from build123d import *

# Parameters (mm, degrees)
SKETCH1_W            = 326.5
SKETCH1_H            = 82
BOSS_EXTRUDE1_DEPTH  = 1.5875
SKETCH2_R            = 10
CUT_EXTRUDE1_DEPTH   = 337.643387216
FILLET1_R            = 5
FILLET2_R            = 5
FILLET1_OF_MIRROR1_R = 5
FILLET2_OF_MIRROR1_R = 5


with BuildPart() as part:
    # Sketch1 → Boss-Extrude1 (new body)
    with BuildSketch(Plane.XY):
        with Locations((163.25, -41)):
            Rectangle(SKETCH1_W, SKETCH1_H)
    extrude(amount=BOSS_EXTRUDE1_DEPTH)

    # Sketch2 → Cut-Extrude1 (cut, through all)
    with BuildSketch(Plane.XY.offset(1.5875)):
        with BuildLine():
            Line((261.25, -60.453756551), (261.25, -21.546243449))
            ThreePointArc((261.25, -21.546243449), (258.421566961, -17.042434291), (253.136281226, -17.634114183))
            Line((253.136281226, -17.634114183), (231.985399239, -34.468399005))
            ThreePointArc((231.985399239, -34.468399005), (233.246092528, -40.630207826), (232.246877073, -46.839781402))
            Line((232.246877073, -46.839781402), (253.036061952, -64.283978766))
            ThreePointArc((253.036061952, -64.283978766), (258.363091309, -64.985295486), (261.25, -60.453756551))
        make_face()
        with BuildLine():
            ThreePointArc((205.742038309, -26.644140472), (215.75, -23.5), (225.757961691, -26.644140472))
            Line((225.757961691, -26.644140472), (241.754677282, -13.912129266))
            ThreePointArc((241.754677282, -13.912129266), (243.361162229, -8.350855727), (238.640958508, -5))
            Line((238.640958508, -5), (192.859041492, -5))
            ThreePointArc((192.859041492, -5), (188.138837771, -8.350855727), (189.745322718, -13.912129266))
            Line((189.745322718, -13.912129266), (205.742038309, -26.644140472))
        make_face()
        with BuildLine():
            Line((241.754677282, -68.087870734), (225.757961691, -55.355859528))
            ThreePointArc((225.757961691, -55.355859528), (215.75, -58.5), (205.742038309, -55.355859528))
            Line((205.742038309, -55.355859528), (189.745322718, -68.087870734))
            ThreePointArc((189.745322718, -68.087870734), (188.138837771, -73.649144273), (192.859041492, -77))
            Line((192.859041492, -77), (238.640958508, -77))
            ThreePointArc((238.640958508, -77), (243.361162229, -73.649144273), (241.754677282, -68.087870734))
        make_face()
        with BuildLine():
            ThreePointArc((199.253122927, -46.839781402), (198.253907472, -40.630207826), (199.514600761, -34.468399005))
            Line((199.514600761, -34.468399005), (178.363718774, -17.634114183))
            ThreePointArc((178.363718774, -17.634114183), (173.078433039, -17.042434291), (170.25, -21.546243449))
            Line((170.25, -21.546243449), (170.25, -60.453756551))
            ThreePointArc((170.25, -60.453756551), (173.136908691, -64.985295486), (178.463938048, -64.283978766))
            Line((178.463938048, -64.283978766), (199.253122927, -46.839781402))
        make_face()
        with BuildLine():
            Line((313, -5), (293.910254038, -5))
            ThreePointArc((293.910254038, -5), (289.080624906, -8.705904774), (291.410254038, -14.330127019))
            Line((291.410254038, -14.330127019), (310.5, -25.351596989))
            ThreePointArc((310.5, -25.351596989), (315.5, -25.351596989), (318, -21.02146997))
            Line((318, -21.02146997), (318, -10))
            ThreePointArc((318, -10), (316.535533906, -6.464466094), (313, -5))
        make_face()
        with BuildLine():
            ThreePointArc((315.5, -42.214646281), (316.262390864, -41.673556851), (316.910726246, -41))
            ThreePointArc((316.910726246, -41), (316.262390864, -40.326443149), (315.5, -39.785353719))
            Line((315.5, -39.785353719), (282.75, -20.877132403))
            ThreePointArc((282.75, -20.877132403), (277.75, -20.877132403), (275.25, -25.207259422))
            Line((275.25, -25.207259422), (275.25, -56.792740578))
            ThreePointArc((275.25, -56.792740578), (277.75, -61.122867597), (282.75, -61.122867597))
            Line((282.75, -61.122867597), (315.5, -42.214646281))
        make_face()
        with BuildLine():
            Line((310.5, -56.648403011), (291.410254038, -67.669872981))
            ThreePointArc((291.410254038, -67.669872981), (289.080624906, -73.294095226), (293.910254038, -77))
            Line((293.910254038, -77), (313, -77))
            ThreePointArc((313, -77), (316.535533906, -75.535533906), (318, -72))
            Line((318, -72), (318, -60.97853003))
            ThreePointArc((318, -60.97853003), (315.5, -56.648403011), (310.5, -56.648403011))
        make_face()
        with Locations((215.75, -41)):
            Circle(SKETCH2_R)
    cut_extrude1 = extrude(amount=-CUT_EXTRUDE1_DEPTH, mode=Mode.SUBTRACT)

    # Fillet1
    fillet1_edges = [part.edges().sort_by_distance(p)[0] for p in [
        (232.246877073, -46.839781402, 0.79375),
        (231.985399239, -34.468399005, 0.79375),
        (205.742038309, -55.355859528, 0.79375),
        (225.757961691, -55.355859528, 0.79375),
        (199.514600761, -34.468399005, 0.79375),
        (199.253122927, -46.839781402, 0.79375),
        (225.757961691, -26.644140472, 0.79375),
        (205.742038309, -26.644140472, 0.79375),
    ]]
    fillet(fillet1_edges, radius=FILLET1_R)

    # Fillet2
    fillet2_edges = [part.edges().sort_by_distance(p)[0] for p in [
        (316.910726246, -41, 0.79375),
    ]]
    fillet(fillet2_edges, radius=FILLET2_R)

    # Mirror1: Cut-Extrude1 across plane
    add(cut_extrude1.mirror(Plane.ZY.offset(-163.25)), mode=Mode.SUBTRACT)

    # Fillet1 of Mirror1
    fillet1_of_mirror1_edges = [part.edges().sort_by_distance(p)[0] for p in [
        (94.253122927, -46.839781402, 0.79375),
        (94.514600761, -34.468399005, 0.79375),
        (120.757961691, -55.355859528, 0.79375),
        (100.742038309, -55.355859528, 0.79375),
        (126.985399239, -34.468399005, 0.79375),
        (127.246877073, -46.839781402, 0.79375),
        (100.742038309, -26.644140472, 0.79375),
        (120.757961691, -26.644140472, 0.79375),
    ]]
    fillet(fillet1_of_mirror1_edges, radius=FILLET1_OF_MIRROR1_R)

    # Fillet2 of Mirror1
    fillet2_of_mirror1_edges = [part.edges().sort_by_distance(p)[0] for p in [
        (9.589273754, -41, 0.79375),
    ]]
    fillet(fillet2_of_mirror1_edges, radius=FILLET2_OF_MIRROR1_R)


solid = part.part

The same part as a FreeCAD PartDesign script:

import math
import FreeCAD as App
import Part
import Sketcher

V = App.Vector
Q = App.Units.Quantity


def edges_at(feature, points):
    """Names of the edges that pass closest to the given points."""
    edges = feature.Shape.Edges
    near = lambda p: min(range(len(edges)), key=lambda i: edges[i].distToShape(Part.Vertex(*p))[0])
    return sorted({f"Edge{near(p) + 1}" for p in points})

doc = App.newDocument("Part")
params = doc.addObject("Spreadsheet::Sheet", "Params")
for row, (alias, value) in enumerate([
    ("sketch1_height", "82 mm"),
    ("sketch1_width", "326.5 mm"),
    ("pad1_length", "1.5875 mm"),
    ("sketch2_diameter", "20 mm"),
    ("sketch2_radius", "5 mm"),
    ("sketch2_radius2", "17.5 mm"),
    ("fillet_radius", "5 mm"),
    ("fillet2_radius", "5 mm"),
    ("fillet3_radius", "5 mm"),
    ("fillet4_radius", "5 mm"),
], start=1):
    params.set(f"A{row}", alias)
    params.set(f"B{row}", "=" + value)
    params.setAlias(f"B{row}", alias)

body = doc.addObject("PartDesign::Body", "Body")

sketch1 = doc.addObject("Sketcher::SketchObject", "Sketch")
body.addObject(sketch1)
sketch1.AttachmentSupport = (doc.XY_Plane, [""])
sketch1.MapMode = "FlatFace"
sketch1.addGeometry([
    Part.LineSegment(V(0, 0, 0), V(0, -82, 0)),
    Part.LineSegment(V(0, -82, 0), V(326, -82, 0)),
    Part.LineSegment(V(326, -82, 0), V(326, 0, 0)),
    Part.LineSegment(V(326, 0, 0), V(0, 0, 0)),
], False)
sketch1.addConstraint([
    Sketcher.Constraint("Coincident", 0, 2, 1, 1),
    Sketcher.Constraint("Coincident", 1, 2, 2, 1),
    Sketcher.Constraint("Coincident", 2, 2, 3, 1),
    Sketcher.Constraint("Coincident", 3, 2, 0, 1),
    Sketcher.Constraint("Vertical", 0),
    Sketcher.Constraint("Horizontal", 1),
    Sketcher.Constraint("Vertical", 2),
    Sketcher.Constraint("Horizontal", 3),
    Sketcher.Constraint("Coincident", 3, 2, -1, 1),
    Sketcher.Constraint("DistanceY", 0, 2, 0, 1, Q("82 mm")),
    Sketcher.Constraint("DistanceX", 1, 1, 1, 2, Q("326.5 mm")),
])
sketch1.setExpression("Constraints[9]", "Params.sketch1_height")
sketch1.setExpression("Constraints[10]", "Params.sketch1_width")
pad1 = doc.addObject("PartDesign::Pad", "Pad")
body.addObject(pad1)
pad1.Profile = sketch1
pad1.setExpression("Length", "Params.pad1_length")

sketch2 = doc.addObject("Sketcher::SketchObject", "Sketch001")
body.addObject(sketch2)
sketch2.AttachmentSupport = (doc.XY_Plane, [""])
sketch2.MapMode = "FlatFace"
sketch2.AttachmentOffset = App.Placement(V(0, 0, 1.5875), App.Rotation())
sketch2.addGeometry([
    Part.LineSegment(V(261.2, -60.5, 0), V(261.2, -21.5, 0)),
    Part.ArcOfCircle(Part.Circle(V(256.2, -21.5, 0), V(0, 0, 1), 5), math.radians(0), math.radians(129)),
    Part.LineSegment(V(253.1, -17.6, 0), V(232, -34.5, 0)),
    Part.ArcOfCircle(Part.Circle(V(215.8, -41, 0), V(0, 0, 1), 17.5), math.radians(-19), math.radians(22)),
    Part.LineSegment(V(232.2, -46.8, 0), V(253, -64.3, 0)),
    Part.ArcOfCircle(Part.Circle(V(256.3, -60.5, 0), V(0, 0, 1), 5), math.radians(-130), math.radians(0)),
    Part.ArcOfCircle(Part.Circle(V(215.8, -41, 0), V(0, 0, 1), 17.5), math.radians(55), math.radians(125)),
    Part.LineSegment(V(225.8, -26.6, 0), V(241.8, -13.9, 0)),
    Part.ArcOfCircle(Part.Circle(V(238.6, -10, 0), V(0, 0, 1), 5), math.radians(-51), math.radians(90)),
    Part.LineSegment(V(238.6, -5, 0), V(192.9, -5, 0)),
    Part.ArcOfCircle(Part.Circle(V(192.9, -10, 0), V(0, 0, 1), 5), math.radians(90), math.radians(231)),
    Part.LineSegment(V(189.7, -13.9, 0), V(205.7, -26.6, 0)),
    Part.LineSegment(V(241.8, -68.1, 0), V(225.8, -55.4, 0)),
    Part.ArcOfCircle(Part.Circle(V(215.8, -41, 0), V(0, 0, 1), 17.5), math.radians(-125), math.radians(-55)),
    Part.LineSegment(V(205.7, -55.4, 0), V(189.7, -68.1, 0)),
    Part.ArcOfCircle(Part.Circle(V(192.9, -72, 0), V(0, 0, 1), 5), math.radians(129), math.radians(270)),
    Part.LineSegment(V(192.9, -77, 0), V(238.6, -77, 0)),
    Part.ArcOfCircle(Part.Circle(V(238.6, -72, 0), V(0, 0, 1), 5), math.radians(-90), math.radians(51)),
    Part.ArcOfCircle(Part.Circle(V(215.7, -41, 0), V(0, 0, 1), 17.5), math.radians(158), math.radians(199)),
    Part.LineSegment(V(199.5, -34.5, 0), V(178.4, -17.6, 0)),
    Part.ArcOfCircle(Part.Circle(V(175.2, -21.5, 0), V(0, 0, 1), 5), math.radians(51), math.radians(180)),
    Part.LineSegment(V(170.2, -21.5, 0), V(170.2, -60.5, 0)),
    Part.ArcOfCircle(Part.Circle(V(175.2, -60.5, 0), V(0, 0, 1), 5), math.radians(180), math.radians(310)),
    Part.LineSegment(V(178.5, -64.3, 0), V(199.3, -46.8, 0)),
    Part.LineSegment(V(313, -5, 0), V(293.9, -5, 0)),
    Part.ArcOfCircle(Part.Circle(V(293.9, -10, 0), V(0, 0, 1), 5), math.radians(90), math.radians(240)),
    Part.LineSegment(V(291.4, -14.3, 0), V(310.5, -25.4, 0)),
    Part.ArcOfCircle(Part.Circle(V(313, -21, 0), V(0, 0, 1), 5), math.radians(-120), math.radians(0)),
    Part.LineSegment(V(318, -21, 0), V(318, -10, 0)),
    Part.ArcOfCircle(Part.Circle(V(313, -10, 0), V(0, 0, 1), 5), math.radians(0), math.radians(90)),
    Part.ArcOfCircle(Part.Circle(V(313, -37.9, 0), V(0, 0, 1), 5), math.radians(-60), math.radians(-39)),
    Part.ArcOfCircle(Part.Circle(V(313, -44.1, 0), V(0, 0, 1), 5), math.radians(39), math.radians(60)),
    Part.LineSegment(V(315.5, -39.8, 0), V(282.8, -20.9, 0)),
    Part.ArcOfCircle(Part.Circle(V(280.2, -25.2, 0), V(0, 0, 1), 5), math.radians(60), math.radians(180)),
    Part.LineSegment(V(275.2, -25.2, 0), V(275.2, -56.8, 0)),
    Part.ArcOfCircle(Part.Circle(V(280.2, -56.8, 0), V(0, 0, 1), 5), math.radians(180), math.radians(300)),
    Part.LineSegment(V(282.8, -61.1, 0), V(315.5, -42.2, 0)),
    Part.LineSegment(V(310.5, -56.6, 0), V(291.4, -67.7, 0)),
    Part.ArcOfCircle(Part.Circle(V(293.9, -72, 0), V(0, 0, 1), 5), math.radians(120), math.radians(270)),
    Part.LineSegment(V(293.9, -77, 0), V(313, -77, 0)),
    Part.ArcOfCircle(Part.Circle(V(313, -72, 0), V(0, 0, 1), 5), math.radians(-90), math.radians(0)),
    Part.LineSegment(V(318, -72, 0), V(318, -61, 0)),
    Part.ArcOfCircle(Part.Circle(V(313, -61, 0), V(0, 0, 1), 5), math.radians(0), math.radians(120)),
    Part.Circle(V(215.8, -41, 0), V(0, 0, 1), 10),
], False)
sketch2.addConstraint([
    Sketcher.Constraint("Tangent", 0, 2, 1, 1),
    Sketcher.Constraint("Tangent", 1, 2, 2, 1),
    Sketcher.Constraint("Coincident", 2, 2, 3, 2),
    Sketcher.Constraint("Coincident", 3, 1, 4, 1),
    Sketcher.Constraint("Tangent", 4, 2, 5, 1),
    Sketcher.Constraint("Tangent", 5, 2, 0, 1),
    Sketcher.Constraint("Coincident", 6, 1, 7, 1),
    Sketcher.Constraint("Tangent", 7, 2, 8, 1),
    Sketcher.Constraint("Tangent", 8, 2, 9, 1),
    Sketcher.Constraint("Tangent", 9, 2, 10, 1),
    Sketcher.Constraint("Tangent", 10, 2, 11, 1),
    Sketcher.Constraint("Coincident", 11, 2, 6, 2),
    Sketcher.Constraint("Coincident", 12, 2, 13, 2),
    Sketcher.Constraint("Coincident", 13, 1, 14, 1),
    Sketcher.Constraint("Tangent", 14, 2, 15, 1),
    Sketcher.Constraint("Tangent", 15, 2, 16, 1),
    Sketcher.Constraint("Tangent", 16, 2, 17, 1),
    Sketcher.Constraint("Tangent", 17, 2, 12, 1),
    Sketcher.Constraint("Coincident", 18, 1, 19, 1),
    Sketcher.Constraint("Tangent", 19, 2, 20, 1),
    Sketcher.Constraint("Tangent", 20, 2, 21, 1),
    Sketcher.Constraint("Tangent", 21, 2, 22, 1),
    Sketcher.Constraint("Tangent", 22, 2, 23, 1),
    Sketcher.Constraint("Coincident", 23, 2, 18, 2),
    Sketcher.Constraint("Tangent", 24, 2, 25, 1),
    Sketcher.Constraint("Tangent", 25, 2, 26, 1),
    Sketcher.Constraint("Tangent", 26, 2, 27, 1),
    Sketcher.Constraint("Tangent", 27, 2, 28, 1),
    Sketcher.Constraint("Tangent", 28, 2, 29, 1),
    Sketcher.Constraint("Tangent", 29, 2, 24, 1),
    Sketcher.Constraint("Coincident", 30, 2, 31, 1),
    Sketcher.Constraint("Tangent", 31, 2, 32, 1),
    Sketcher.Constraint("Tangent", 32, 2, 33, 1),
    Sketcher.Constraint("Tangent", 33, 2, 34, 1),
    Sketcher.Constraint("Tangent", 34, 2, 35, 1),
    Sketcher.Constraint("Tangent", 35, 2, 36, 1),
    Sketcher.Constraint("Tangent", 36, 2, 30, 1),
    Sketcher.Constraint("Tangent", 37, 2, 38, 1),
    Sketcher.Constraint("Tangent", 38, 2, 39, 1),
    Sketcher.Constraint("Tangent", 39, 2, 40, 1),
    Sketcher.Constraint("Tangent", 40, 2, 41, 1),
    Sketcher.Constraint("Tangent", 41, 2, 42, 1),
    Sketcher.Constraint("Tangent", 42, 2, 37, 1),
    Sketcher.Constraint("Vertical", 0),
    Sketcher.Constraint("Horizontal", 9),
    Sketcher.Constraint("Horizontal", 16),
    Sketcher.Constraint("Vertical", 21),
    Sketcher.Constraint("Horizontal", 24),
    Sketcher.Constraint("Vertical", 28),
    Sketcher.Constraint("Vertical", 34),
    Sketcher.Constraint("Horizontal", 39),
    Sketcher.Constraint("Vertical", 41),
    Sketcher.Constraint("Coincident", 6, 3, 3, 3),
    Sketcher.Constraint("Coincident", 13, 3, 3, 3),
    Sketcher.Constraint("Coincident", 18, 3, 3, 3),
    Sketcher.Constraint("Coincident", 43, 3, 3, 3),
    Sketcher.Constraint("Equal", 1, 5),
    Sketcher.Constraint("Equal", 3, 6),
    Sketcher.Constraint("Equal", 5, 8),
    Sketcher.Constraint("Equal", 8, 10),
    Sketcher.Constraint("Equal", 6, 13),
    Sketcher.Constraint("Equal", 10, 15),
    Sketcher.Constraint("Equal", 15, 17),
    Sketcher.Constraint("Equal", 13, 18),
    Sketcher.Constraint("Equal", 17, 20),
    Sketcher.Constraint("Equal", 20, 22),
    Sketcher.Constraint("Equal", 22, 25),
    Sketcher.Constraint("Equal", 25, 27),
    Sketcher.Constraint("Equal", 27, 29),
    Sketcher.Constraint("Equal", 29, 30),
    Sketcher.Constraint("Equal", 30, 31),
    Sketcher.Constraint("Equal", 31, 33),
    Sketcher.Constraint("Equal", 33, 35),
    Sketcher.Constraint("Equal", 35, 38),
    Sketcher.Constraint("Equal", 38, 40),
    Sketcher.Constraint("Equal", 40, 42),
    Sketcher.Constraint("Parallel", 2, 7),
    Sketcher.Constraint("Parallel", 11, 12),
    Sketcher.Constraint("Parallel", 7, 14),
    Sketcher.Constraint("Parallel", 12, 19),
    Sketcher.Constraint("Parallel", 26, 32),
    Sketcher.Constraint("Parallel", 36, 37),
    Sketcher.Constraint("Horizontal", 1, 3, 20, 3),
    Sketcher.Constraint("Horizontal", 5, 3, 22, 3),
    Sketcher.Constraint("Horizontal", 10, 3, 25, 3),
    Sketcher.Constraint("Horizontal", 17, 3, 38, 3),
    Sketcher.Constraint("Horizontal", 7, 2, 10, 2),
    Sketcher.Constraint("Horizontal", 6, 1, 11, 2),
    Sketcher.Constraint("Horizontal", 12, 2, 13, 1),
    Sketcher.Constraint("Horizontal", 2, 2, 18, 1),
    Sketcher.Constraint("Horizontal", 4, 2, 22, 2),
    Sketcher.Constraint("Horizontal", 43, 3, 30, 2),
    Sketcher.Constraint("Vertical", 10, 3, 15, 3),
    Sketcher.Constraint("Vertical", 29, 3, 30, 3),
    Sketcher.Constraint("Vertical", 30, 3, 31, 3),
    Sketcher.Constraint("Vertical", 25, 3, 38, 3),
    Sketcher.Constraint("Vertical", 31, 3, 40, 3),
    Sketcher.Constraint("Vertical", 6, 1, 12, 2),
    Sketcher.Constraint("Vertical", 32, 2, 35, 2),
    Sketcher.Constraint("Diameter", 43, Q("20 mm")),
    Sketcher.Constraint("Radius", 1, Q("5 mm")),
    Sketcher.Constraint("Radius", 3, Q("17.5 mm")),
    Sketcher.Constraint("Angle", 4, Q("-40 deg")),
    Sketcher.Constraint("Angle", 26, Q("-30 deg")),
    Sketcher.Constraint("DistanceY", 3, 3, -1, 1, Q("41 mm")),
    Sketcher.Constraint("DistanceY", 8, 3, -1, 1, Q("10 mm")),
    Sketcher.Constraint("DistanceX", -1, 1, 27, 3, Q("313 mm")),
    Sketcher.Constraint("DistanceX", -1, 1, 1, 3, Q("256.25 mm")),
    Sketcher.Constraint("DistanceX", -1, 1, 3, 3, Q("215.75 mm")),
    Sketcher.Constraint("DistanceX", -1, 1, 33, 3, Q("280.25 mm")),
    Sketcher.Constraint("DistanceY", 28, 1, 28, 2, Q("11.02147 mm")),
    Sketcher.Constraint("DistanceY", 34, 2, 34, 1, Q("31.585481 mm")),
    Sketcher.Constraint("DistanceX", -1, 1, 2, 2, Q("231.985399 mm")),
    Sketcher.Constraint("DistanceX", 9, 2, 9, 1, Q("45.781917 mm")),
    Sketcher.Constraint("DistanceY", 0, 1, 0, 2, Q("38.907513 mm")),
    Sketcher.Constraint("DistanceX", -1, 1, 1, 2, Q("253.136281 mm")),
])
sketch2.setExpression("Constraints[99]", "Params.sketch2_diameter")
sketch2.setExpression("Constraints[100]", "Params.sketch2_radius")
sketch2.setExpression("Constraints[101]", "Params.sketch2_radius2")
pocket1 = doc.addObject("PartDesign::Pocket", "Pocket")
body.addObject(pocket1)
pocket1.Profile = sketch2
pocket1.Type = "ThroughAll"
doc.recompute()

fillet = doc.addObject("PartDesign::Fillet", "Fillet")
body.addObject(fillet)
fillet.Base = (pocket1, edges_at(pocket1, [
    (232.247, -46.84, 0.794),
    (231.985, -34.468, 0.794),
    (205.742, -55.356, 0.794),
    (225.758, -55.356, 0.794),
    (199.515, -34.468, 0.794),
    (199.253, -46.84, 0.794),
    (225.758, -26.644, 0.794),
    (205.742, -26.644, 0.794),
]))
fillet.setExpression("Radius", "Params.fillet_radius")
doc.recompute()

fillet2 = doc.addObject("PartDesign::Fillet", "Fillet001")
body.addObject(fillet2)
fillet2.Base = (fillet, edges_at(fillet, [(316.911, -41, 0.794)]))
fillet2.setExpression("Radius", "Params.fillet2_radius")
doc.recompute()

datumplane = doc.addObject("PartDesign::Plane", "DatumPlane")
body.addObject(datumplane)
datumplane.AttachmentSupport = (doc.YZ_Plane, [""])
datumplane.MapMode = "FlatFace"
datumplane.AttachmentOffset = App.Placement(V(0, 0, 163.25), App.Rotation())
mirrored = doc.addObject("PartDesign::Mirrored", "Mirrored")
body.addObject(mirrored)
mirrored.Originals = [pocket1]
mirrored.MirrorPlane = (datumplane, [""])
body.Tip = mirrored
doc.recompute()

fillet3 = doc.addObject("PartDesign::Fillet", "Fillet002")
body.addObject(fillet3)
fillet3.Base = (mirrored, edges_at(mirrored, [
    (94.253, -46.84, 0.794),
    (94.515, -34.468, 0.794),
    (120.758, -55.356, 0.794),
    (100.742, -55.356, 0.794),
    (126.985, -34.468, 0.794),
    (127.247, -46.84, 0.794),
    (100.742, -26.644, 0.794),
    (120.758, -26.644, 0.794),
]))
fillet3.setExpression("Radius", "Params.fillet3_radius")
doc.recompute()

fillet4 = doc.addObject("PartDesign::Fillet", "Fillet003")
body.addObject(fillet4)
fillet4.Base = (fillet3, edges_at(fillet3, [(9.589, -41, 0.794)]))
fillet4.setExpression("Radius", "Params.fillet4_radius")

doc.recompute()
